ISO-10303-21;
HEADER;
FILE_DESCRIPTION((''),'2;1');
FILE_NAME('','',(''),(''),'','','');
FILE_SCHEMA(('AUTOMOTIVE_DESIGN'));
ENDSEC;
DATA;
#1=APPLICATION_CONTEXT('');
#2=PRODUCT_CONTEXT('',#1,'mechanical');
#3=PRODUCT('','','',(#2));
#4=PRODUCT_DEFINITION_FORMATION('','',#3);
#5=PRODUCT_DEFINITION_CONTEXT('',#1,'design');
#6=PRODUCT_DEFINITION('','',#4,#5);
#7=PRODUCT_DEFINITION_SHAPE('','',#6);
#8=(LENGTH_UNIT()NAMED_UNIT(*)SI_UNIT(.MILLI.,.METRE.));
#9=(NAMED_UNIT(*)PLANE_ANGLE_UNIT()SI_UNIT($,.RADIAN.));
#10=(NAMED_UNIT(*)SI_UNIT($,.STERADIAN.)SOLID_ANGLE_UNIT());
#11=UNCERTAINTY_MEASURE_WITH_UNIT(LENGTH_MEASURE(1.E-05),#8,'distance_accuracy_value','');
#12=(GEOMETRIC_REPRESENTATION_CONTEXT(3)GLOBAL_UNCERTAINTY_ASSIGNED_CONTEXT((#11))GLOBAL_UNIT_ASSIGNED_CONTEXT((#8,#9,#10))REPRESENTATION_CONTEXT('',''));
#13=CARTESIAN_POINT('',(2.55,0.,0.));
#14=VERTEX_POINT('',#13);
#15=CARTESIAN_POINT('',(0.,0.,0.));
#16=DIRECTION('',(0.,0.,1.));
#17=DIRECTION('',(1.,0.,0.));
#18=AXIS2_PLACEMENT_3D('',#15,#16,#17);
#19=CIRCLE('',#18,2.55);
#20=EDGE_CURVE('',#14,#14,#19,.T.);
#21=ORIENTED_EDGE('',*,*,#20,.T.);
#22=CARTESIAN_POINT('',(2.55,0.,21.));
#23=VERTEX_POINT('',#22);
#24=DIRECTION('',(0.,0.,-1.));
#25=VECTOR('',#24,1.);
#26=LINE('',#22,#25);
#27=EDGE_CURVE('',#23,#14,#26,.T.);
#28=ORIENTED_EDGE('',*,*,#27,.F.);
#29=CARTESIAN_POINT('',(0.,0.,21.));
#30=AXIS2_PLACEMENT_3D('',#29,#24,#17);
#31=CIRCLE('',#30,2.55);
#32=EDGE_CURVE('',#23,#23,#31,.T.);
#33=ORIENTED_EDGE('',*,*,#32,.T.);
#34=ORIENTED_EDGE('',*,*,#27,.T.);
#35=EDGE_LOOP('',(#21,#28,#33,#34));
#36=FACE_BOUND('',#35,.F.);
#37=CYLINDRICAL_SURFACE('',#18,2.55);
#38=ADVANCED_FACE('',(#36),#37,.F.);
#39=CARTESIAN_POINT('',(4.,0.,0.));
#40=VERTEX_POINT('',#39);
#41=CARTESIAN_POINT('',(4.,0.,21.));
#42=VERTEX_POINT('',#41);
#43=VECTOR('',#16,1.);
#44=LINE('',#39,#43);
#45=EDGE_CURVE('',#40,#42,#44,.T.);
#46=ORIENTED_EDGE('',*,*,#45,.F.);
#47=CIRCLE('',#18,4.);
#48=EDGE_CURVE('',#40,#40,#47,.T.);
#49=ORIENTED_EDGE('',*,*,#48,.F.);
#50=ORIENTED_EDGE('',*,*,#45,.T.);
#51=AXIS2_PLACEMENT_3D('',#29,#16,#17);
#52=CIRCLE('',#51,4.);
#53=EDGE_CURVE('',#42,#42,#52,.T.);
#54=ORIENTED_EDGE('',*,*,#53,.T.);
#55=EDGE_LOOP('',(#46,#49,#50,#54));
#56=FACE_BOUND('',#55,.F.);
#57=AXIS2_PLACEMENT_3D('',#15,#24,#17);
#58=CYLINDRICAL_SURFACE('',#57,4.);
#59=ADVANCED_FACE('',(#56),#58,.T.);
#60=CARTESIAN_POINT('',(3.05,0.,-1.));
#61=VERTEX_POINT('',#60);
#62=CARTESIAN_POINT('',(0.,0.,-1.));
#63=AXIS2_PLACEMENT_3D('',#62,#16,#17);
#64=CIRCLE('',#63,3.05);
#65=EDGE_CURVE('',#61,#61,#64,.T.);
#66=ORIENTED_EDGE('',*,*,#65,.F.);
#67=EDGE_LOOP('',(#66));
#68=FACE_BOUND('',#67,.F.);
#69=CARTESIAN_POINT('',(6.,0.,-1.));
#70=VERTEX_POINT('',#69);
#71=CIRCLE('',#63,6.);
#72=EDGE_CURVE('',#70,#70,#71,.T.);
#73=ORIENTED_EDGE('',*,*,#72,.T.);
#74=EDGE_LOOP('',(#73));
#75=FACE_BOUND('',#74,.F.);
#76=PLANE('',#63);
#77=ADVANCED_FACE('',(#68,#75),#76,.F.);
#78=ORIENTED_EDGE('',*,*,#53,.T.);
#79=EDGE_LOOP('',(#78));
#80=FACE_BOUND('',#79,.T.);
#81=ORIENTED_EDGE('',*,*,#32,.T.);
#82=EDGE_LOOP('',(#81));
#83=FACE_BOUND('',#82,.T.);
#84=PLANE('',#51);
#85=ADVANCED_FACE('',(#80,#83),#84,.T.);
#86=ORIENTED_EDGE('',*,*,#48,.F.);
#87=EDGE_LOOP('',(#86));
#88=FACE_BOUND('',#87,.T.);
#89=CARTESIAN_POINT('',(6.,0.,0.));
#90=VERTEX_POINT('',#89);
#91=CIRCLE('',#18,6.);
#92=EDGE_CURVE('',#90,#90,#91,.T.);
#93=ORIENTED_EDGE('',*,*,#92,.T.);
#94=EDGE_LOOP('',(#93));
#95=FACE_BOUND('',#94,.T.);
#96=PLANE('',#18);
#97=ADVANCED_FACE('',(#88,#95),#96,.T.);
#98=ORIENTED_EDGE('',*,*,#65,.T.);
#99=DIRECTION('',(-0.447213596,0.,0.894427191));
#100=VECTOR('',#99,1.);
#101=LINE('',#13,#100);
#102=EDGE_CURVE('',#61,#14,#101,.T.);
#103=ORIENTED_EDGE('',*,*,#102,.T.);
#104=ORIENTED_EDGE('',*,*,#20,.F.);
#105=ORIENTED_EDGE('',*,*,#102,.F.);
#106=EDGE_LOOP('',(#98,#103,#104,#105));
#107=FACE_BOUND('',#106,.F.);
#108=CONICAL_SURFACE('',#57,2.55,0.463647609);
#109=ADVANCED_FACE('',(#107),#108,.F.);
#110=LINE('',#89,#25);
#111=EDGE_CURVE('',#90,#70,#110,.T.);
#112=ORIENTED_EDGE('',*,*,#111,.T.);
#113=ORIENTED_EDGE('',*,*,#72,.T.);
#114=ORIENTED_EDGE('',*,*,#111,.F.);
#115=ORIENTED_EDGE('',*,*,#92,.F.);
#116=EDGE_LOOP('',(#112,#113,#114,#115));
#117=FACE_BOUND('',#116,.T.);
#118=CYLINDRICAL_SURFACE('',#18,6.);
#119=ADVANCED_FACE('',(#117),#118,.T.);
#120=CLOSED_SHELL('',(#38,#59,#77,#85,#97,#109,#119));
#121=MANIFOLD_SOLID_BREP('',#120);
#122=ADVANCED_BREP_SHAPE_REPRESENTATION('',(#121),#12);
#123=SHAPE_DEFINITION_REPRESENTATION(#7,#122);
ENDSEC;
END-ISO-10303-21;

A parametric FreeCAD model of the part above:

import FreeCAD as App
import Part
import Sketcher

V = App.Vector
Q = App.Units.Quantity


def edges_at(feature, points):
    """Names of the edges that pass closest to the given points."""
    edges = feature.Shape.Edges
    near = lambda p: min(range(len(edges)), key=lambda i: edges[i].distToShape(Part.Vertex(*p))[0])
    return sorted({f"Edge{near(p) + 1}" for p in points})

doc = App.newDocument("Part")
body = doc.addObject("PartDesign::Body", "Body")

# Sketch on XY plane
sketch1 = body.newObject("Sketcher::SketchObject", "Sketch")
sketch1.AttachmentSupport = (doc.getObject("XY_Plane"), [""])
sketch1.MapMode = "FlatFace"
sketch1.addGeometry(Part.Circle(V(0, 0, 0), V(0, 0, 1), 6), False)
sketch1.addConstraint(Sketcher.Constraint("Coincident", 0, 3, -1, 1))
sketch1.addConstraint(Sketcher.Constraint("Diameter", 0, Q("12 mm")))
pad1 = body.newObject("PartDesign::Pad", "Pad")
pad1.Profile = sketch1
pad1.Length = 1
pad1.Reversed = True

# Sketch on XY plane
sketch2 = body.newObject("Sketcher::SketchObject", "Sketch001")
sketch2.AttachmentSupport = (doc.getObject("XY_Plane"), [""])
sketch2.MapMode = "FlatFace"
sketch2.addGeometry(Part.Circle(V(0, 0, 0), V(0, 0, 1), 4), False)
sketch2.addConstraint(Sketcher.Constraint("Coincident", 0, 3, -1, 1))
sketch2.addConstraint(Sketcher.Constraint("Diameter", 0, Q("8 mm")))
pad2 = body.newObject("PartDesign::Pad", "Pad001")
pad2.Profile = sketch2
pad2.Length = 21

# Sketch on XY plane
sketch3 = body.newObject("Sketcher::SketchObject", "Sketch002")
sketch3.AttachmentSupport = (doc.getObject("XY_Plane"), [""])
sketch3.MapMode = "FlatFace"
sketch3.addGeometry(Part.Circle(V(0, 0, 0), V(0, 0, 1), 2.55), False)
sketch3.addConstraint(Sketcher.Constraint("Coincident", 0, 3, -1, 1))
sketch3.addConstraint(Sketcher.Constraint("Diameter", 0, Q("5.1 mm")))
pocket1 = body.newObject("PartDesign::Pocket", "Pocket")
pocket1.Profile = sketch3
pocket1.Type = "ThroughAll"
pocket1.Midplane = True
doc.recompute()

chamfer = body.newObject("PartDesign::Chamfer", "Chamfer")
chamfer.Base = (pocket1, edges_at(pocket1, [(-2.55, 0, -1)]))
chamfer.ChamferType = "Two distances"
chamfer.Size = 0.5
chamfer.Size2 = 1

doc.recompute()
